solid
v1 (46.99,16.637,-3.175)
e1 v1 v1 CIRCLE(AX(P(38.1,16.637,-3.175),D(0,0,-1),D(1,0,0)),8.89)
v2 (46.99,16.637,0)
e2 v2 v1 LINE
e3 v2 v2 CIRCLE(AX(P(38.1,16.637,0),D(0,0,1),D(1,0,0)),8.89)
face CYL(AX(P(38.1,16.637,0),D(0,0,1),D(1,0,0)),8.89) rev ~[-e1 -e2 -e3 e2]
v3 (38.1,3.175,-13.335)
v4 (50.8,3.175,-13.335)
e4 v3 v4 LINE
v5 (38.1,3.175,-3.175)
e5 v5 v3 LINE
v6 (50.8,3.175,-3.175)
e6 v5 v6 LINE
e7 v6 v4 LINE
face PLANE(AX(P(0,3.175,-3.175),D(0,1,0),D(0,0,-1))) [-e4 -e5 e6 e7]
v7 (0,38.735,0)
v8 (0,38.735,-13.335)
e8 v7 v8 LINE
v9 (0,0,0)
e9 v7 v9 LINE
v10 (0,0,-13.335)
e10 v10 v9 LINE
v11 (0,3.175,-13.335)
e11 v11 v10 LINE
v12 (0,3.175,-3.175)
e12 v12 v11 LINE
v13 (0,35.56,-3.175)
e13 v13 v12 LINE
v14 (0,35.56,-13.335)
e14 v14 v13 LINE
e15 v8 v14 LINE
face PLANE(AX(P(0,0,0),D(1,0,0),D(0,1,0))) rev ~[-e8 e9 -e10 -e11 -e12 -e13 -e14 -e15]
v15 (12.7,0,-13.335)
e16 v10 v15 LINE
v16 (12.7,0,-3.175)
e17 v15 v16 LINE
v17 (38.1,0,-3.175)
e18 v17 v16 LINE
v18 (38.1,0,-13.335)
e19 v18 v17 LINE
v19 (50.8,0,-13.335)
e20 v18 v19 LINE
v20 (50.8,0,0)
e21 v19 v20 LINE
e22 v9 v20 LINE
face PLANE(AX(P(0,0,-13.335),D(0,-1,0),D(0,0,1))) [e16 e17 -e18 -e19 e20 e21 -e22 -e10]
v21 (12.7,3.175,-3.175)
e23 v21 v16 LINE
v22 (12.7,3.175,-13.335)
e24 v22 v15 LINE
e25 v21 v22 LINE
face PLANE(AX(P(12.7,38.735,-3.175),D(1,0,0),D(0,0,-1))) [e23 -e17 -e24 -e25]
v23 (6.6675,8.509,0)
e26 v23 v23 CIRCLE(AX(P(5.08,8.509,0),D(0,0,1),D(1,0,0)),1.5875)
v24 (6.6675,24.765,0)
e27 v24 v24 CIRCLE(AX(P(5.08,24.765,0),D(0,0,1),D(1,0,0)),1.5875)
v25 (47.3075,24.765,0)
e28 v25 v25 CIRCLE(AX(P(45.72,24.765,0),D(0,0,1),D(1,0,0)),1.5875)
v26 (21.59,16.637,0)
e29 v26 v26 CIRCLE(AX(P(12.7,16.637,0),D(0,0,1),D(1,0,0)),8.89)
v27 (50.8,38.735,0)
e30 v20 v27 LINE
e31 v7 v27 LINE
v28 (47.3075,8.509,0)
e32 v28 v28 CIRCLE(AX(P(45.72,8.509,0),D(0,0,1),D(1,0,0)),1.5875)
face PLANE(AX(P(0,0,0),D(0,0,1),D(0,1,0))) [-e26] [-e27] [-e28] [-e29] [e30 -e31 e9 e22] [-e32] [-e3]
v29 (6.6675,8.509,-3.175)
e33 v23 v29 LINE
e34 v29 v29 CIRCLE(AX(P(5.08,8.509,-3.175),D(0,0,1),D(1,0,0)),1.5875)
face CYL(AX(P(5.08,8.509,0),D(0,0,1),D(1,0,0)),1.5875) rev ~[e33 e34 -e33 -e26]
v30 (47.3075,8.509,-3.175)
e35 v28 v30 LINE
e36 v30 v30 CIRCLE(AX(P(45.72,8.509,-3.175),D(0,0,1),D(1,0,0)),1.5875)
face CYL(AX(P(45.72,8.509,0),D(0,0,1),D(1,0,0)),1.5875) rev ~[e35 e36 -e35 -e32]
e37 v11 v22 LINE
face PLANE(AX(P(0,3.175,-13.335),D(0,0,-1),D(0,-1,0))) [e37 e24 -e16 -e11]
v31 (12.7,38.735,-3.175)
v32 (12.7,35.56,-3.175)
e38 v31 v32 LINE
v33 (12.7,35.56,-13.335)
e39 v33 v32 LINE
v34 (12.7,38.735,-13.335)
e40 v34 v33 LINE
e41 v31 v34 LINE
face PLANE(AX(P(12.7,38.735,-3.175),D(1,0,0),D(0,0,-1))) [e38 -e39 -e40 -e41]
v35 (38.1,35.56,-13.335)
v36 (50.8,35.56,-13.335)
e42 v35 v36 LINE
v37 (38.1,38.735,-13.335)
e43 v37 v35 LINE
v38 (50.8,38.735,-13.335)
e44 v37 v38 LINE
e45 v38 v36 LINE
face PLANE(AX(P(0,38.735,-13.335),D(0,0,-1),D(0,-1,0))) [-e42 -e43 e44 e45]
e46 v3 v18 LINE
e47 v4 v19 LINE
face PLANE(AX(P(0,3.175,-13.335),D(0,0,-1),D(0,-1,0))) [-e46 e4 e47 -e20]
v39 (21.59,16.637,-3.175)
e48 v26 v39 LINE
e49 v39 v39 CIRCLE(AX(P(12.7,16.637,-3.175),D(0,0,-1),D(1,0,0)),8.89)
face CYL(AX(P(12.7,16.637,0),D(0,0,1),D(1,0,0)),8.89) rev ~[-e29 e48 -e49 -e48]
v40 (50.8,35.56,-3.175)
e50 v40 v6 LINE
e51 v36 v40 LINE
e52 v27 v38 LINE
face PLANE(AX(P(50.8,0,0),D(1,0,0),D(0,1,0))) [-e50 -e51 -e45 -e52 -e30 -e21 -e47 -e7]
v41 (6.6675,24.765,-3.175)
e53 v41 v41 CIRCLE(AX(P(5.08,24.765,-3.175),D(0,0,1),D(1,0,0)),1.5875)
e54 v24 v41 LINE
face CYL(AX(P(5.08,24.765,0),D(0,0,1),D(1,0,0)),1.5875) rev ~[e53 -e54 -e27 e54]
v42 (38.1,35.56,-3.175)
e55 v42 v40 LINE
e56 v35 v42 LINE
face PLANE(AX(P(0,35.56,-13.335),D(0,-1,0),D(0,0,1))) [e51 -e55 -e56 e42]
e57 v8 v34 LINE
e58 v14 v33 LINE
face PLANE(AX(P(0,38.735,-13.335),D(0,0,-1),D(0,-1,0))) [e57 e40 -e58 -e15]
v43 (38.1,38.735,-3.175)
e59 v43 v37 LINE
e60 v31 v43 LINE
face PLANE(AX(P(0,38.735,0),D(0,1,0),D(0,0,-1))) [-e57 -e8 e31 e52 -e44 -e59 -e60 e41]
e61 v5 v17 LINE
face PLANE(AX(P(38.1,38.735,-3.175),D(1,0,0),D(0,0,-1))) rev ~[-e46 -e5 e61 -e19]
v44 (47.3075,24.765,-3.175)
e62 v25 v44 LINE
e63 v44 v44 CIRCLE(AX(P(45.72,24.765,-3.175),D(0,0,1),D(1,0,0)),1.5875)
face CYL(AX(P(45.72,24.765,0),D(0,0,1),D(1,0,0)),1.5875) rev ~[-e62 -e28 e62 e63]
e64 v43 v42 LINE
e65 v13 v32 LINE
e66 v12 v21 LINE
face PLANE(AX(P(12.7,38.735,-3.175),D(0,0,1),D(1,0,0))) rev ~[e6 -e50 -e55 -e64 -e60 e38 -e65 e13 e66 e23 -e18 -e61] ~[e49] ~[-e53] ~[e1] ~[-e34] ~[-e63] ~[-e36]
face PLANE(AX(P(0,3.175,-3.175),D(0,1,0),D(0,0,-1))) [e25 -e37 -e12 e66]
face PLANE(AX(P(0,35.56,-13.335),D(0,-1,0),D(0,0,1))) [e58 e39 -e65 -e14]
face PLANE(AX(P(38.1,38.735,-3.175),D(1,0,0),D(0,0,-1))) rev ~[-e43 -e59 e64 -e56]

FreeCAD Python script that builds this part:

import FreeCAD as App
import Part
import Sketcher
from FreeCAD import Vector
Q = App.Units.Quantity


def add_polygon(sketch, points):
    """Adds a closed chain of lines whose ends are joined by coincident constraints."""
    first, n = sketch.GeometryCount, len(points)
    for a, b in zip(points, points[1:] + points[:1]):
        sketch.addGeometry(Part.LineSegment(App.Vector(*a, 0), App.Vector(*b, 0)), False)
    for i in range(n):
        sketch.addConstraint(Sketcher.Constraint("Coincident", first + i, 2, first + (i + 1) % n, 1))

doc = App.newDocument("Part")
body = doc.addObject("PartDesign::Body", "Body")

# Sketch on YZ plane
sketch1 = doc.addObject("Sketcher::SketchObject", "Sketch")
body.addObject(sketch1)
sketch1.AttachmentSupport = (doc.YZ_Plane, [""])
sketch1.MapMode = "FlatFace"
add_polygon(sketch1, [(38.7, 0), (0, 0), (0, -13.3), (3.2, -13.3), (3.2, -3.2), (35.6, -3.2), (35.6, -13.3), (38.7, -13.3)])  # lines 0-7
sketch1.addConstraint(Sketcher.Constraint("Horizontal", 0))
sketch1.addConstraint(Sketcher.Constraint("Vertical", 1))
sketch1.addConstraint(Sketcher.Constraint("Horizontal", 2))
sketch1.addConstraint(Sketcher.Constraint("Vertical", 3))
sketch1.addConstraint(Sketcher.Constraint("Horizontal", 4))
sketch1.addConstraint(Sketcher.Constraint("Vertical", 5))
sketch1.addConstraint(Sketcher.Constraint("Horizontal", 6))
sketch1.addConstraint(Sketcher.Constraint("Vertical", 7))
sketch1.addConstraint(Sketcher.Constraint("Coincident", 0, 2, -1, 1))
sketch1.addConstraint(Sketcher.Constraint("Horizontal", 2, 2, 5, 2))
sketch1.addConstraint(Sketcher.Constraint("Equal", 2, 6))
sketch1.addConstraint(Sketcher.Constraint("DistanceY", 3, 1, 3, 2, Q("0.4 in")))
sketch1.addConstraint(Sketcher.Constraint("DistanceX", -1, 1, 4, 2, Q("1.4 in")))
sketch1.addConstraint(Sketcher.Constraint("DistanceX", 2, 1, 2, 2, Q("0.125 in")))
sketch1.addConstraint(Sketcher.Constraint("DistanceY", 1, 2, 1, 1, Q("0.525 in")))
pad1 = doc.addObject("PartDesign::Pad", "Pad")
body.addObject(pad1)
pad1.Profile = sketch1
pad1.Length = Q("2 in")

# Sketch on XY plane
sketch2 = doc.addObject("Sketcher::SketchObject", "Sketch001")
body.addObject(sketch2)
sketch2.AttachmentSupport = (doc.XY_Plane, [""])
sketch2.MapMode = "FlatFace"
sketch2.addGeometry(Part.Circle(Vector(12.7, 16.6, 0), Vector(0, 0, 1), 8.9), False)
sketch2.addGeometry(Part.Circle(Vector(38.1, 16.6, 0), Vector(0, 0, 1), 8.9), False)
sketch2.addGeometry(Part.Circle(Vector(5.1, 8.5, 0), Vector(0, 0, 1), 1.6), False)
sketch2.addGeometry(Part.Circle(Vector(45.7, 24.8, 0), Vector(0, 0, 1), 1.6), False)
sketch2.addGeometry(Part.Circle(Vector(5.1, 24.8, 0), Vector(0, 0, 1), 1.6), False)
sketch2.addGeometry(Part.Circle(Vector(45.7, 8.5, 0), Vector(0, 0, 1), 1.6), False)
sketch2.addConstraint(Sketcher.Constraint("Equal", 0, 1))
sketch2.addConstraint(Sketcher.Constraint("Equal", 2, 3))
sketch2.addConstraint(Sketcher.Constraint("Equal", 3, 4))
sketch2.addConstraint(Sketcher.Constraint("Equal", 4, 5))
sketch2.addConstraint(Sketcher.Constraint("Horizontal", 0, 3, 1, 3))
sketch2.addConstraint(Sketcher.Constraint("Horizontal", 3, 3, 4, 3))
sketch2.addConstraint(Sketcher.Constraint("Horizontal", 2, 3, 5, 3))
sketch2.addConstraint(Sketcher.Constraint("Vertical", 2, 3, 4, 3))
sketch2.addConstraint(Sketcher.Constraint("Vertical", 3, 3, 5, 3))
sketch2.addConstraint(Sketcher.Constraint("Diameter", 0, Q("0.7 in")))
sketch2.addConstraint(Sketcher.Constraint("Diameter", 2, Q("0.125 in")))
sketch2.addConstraint(Sketcher.Constraint("DistanceX", -1, 1, 0, 3, Q("0.5 in")))
sketch2.addConstraint(Sketcher.Constraint("DistanceX", 0, 3, 1, 3, Q("1 in")))
sketch2.addConstraint(Sketcher.Constraint("DistanceX", -1, 1, 2, 3, Q("0.2 in")))
sketch2.addConstraint(Sketcher.Constraint("DistanceX", -1, 1, 3, 3, Q("1.8 in")))
sketch2.addConstraint(Sketcher.Constraint("DistanceY", 2, 3, 0, 3, Q("0.32 in")))
sketch2.addConstraint(Sketcher.Constraint("DistanceY", 1, 3, 3, 3, Q("0.32 in")))
sketch2.addConstraint(Sketcher.Constraint("DistanceY", -1, 1, 0, 3, Q("0.655 in")))
pocket1 = doc.addObject("PartDesign::Pocket", "Pocket")
body.addObject(pocket1)
pocket1.Profile = sketch2
pocket1.Type = "ThroughAll"

# Sketch on XZ plane
sketch3 = doc.addObject("Sketcher::SketchObject", "Sketch002")
body.addObject(sketch3)
sketch3.AttachmentSupport = (doc.XZ_Plane, [""])
sketch3.MapMode = "FlatFace"
sketch3.AttachmentOffset = App.Placement(Vector(0, 0, -1.525 * 25.4), App.Rotation())
add_polygon(sketch3, [(13, -13), (13, -3), (38, -3), (38, -13)])  # lines 0-3
sketch3.addConstraint(Sketcher.Constraint("Vertical", 0))
sketch3.addConstraint(Sketcher.Constraint("Horizontal", 1))
sketch3.addConstraint(Sketcher.Constraint("Vertical", 2))
sketch3.addConstraint(Sketcher.Constraint("Horizontal", 3))
sketch3.addConstraint(Sketcher.Constraint("DistanceX", 1, 1, 1, 2, Q("1 in")))
sketch3.addConstraint(Sketcher.Constraint("DistanceX", -1, 1, 0, 2, Q("0.5 in")))
sketch3.addConstraint(Sketcher.Constraint("DistanceY", 0, 1, 0, 2, Q("0.4 in")))
sketch3.addConstraint(Sketcher.Constraint("DistanceY", 0, 2, -1, 1, Q("0.125 in")))
pocket2 = doc.addObject("PartDesign::Pocket", "Pocket001")
body.addObject(pocket2)
pocket2.Profile = sketch3
pocket2.Type = "ThroughAll"
pocket2.Reversed = True

doc.recompute()
